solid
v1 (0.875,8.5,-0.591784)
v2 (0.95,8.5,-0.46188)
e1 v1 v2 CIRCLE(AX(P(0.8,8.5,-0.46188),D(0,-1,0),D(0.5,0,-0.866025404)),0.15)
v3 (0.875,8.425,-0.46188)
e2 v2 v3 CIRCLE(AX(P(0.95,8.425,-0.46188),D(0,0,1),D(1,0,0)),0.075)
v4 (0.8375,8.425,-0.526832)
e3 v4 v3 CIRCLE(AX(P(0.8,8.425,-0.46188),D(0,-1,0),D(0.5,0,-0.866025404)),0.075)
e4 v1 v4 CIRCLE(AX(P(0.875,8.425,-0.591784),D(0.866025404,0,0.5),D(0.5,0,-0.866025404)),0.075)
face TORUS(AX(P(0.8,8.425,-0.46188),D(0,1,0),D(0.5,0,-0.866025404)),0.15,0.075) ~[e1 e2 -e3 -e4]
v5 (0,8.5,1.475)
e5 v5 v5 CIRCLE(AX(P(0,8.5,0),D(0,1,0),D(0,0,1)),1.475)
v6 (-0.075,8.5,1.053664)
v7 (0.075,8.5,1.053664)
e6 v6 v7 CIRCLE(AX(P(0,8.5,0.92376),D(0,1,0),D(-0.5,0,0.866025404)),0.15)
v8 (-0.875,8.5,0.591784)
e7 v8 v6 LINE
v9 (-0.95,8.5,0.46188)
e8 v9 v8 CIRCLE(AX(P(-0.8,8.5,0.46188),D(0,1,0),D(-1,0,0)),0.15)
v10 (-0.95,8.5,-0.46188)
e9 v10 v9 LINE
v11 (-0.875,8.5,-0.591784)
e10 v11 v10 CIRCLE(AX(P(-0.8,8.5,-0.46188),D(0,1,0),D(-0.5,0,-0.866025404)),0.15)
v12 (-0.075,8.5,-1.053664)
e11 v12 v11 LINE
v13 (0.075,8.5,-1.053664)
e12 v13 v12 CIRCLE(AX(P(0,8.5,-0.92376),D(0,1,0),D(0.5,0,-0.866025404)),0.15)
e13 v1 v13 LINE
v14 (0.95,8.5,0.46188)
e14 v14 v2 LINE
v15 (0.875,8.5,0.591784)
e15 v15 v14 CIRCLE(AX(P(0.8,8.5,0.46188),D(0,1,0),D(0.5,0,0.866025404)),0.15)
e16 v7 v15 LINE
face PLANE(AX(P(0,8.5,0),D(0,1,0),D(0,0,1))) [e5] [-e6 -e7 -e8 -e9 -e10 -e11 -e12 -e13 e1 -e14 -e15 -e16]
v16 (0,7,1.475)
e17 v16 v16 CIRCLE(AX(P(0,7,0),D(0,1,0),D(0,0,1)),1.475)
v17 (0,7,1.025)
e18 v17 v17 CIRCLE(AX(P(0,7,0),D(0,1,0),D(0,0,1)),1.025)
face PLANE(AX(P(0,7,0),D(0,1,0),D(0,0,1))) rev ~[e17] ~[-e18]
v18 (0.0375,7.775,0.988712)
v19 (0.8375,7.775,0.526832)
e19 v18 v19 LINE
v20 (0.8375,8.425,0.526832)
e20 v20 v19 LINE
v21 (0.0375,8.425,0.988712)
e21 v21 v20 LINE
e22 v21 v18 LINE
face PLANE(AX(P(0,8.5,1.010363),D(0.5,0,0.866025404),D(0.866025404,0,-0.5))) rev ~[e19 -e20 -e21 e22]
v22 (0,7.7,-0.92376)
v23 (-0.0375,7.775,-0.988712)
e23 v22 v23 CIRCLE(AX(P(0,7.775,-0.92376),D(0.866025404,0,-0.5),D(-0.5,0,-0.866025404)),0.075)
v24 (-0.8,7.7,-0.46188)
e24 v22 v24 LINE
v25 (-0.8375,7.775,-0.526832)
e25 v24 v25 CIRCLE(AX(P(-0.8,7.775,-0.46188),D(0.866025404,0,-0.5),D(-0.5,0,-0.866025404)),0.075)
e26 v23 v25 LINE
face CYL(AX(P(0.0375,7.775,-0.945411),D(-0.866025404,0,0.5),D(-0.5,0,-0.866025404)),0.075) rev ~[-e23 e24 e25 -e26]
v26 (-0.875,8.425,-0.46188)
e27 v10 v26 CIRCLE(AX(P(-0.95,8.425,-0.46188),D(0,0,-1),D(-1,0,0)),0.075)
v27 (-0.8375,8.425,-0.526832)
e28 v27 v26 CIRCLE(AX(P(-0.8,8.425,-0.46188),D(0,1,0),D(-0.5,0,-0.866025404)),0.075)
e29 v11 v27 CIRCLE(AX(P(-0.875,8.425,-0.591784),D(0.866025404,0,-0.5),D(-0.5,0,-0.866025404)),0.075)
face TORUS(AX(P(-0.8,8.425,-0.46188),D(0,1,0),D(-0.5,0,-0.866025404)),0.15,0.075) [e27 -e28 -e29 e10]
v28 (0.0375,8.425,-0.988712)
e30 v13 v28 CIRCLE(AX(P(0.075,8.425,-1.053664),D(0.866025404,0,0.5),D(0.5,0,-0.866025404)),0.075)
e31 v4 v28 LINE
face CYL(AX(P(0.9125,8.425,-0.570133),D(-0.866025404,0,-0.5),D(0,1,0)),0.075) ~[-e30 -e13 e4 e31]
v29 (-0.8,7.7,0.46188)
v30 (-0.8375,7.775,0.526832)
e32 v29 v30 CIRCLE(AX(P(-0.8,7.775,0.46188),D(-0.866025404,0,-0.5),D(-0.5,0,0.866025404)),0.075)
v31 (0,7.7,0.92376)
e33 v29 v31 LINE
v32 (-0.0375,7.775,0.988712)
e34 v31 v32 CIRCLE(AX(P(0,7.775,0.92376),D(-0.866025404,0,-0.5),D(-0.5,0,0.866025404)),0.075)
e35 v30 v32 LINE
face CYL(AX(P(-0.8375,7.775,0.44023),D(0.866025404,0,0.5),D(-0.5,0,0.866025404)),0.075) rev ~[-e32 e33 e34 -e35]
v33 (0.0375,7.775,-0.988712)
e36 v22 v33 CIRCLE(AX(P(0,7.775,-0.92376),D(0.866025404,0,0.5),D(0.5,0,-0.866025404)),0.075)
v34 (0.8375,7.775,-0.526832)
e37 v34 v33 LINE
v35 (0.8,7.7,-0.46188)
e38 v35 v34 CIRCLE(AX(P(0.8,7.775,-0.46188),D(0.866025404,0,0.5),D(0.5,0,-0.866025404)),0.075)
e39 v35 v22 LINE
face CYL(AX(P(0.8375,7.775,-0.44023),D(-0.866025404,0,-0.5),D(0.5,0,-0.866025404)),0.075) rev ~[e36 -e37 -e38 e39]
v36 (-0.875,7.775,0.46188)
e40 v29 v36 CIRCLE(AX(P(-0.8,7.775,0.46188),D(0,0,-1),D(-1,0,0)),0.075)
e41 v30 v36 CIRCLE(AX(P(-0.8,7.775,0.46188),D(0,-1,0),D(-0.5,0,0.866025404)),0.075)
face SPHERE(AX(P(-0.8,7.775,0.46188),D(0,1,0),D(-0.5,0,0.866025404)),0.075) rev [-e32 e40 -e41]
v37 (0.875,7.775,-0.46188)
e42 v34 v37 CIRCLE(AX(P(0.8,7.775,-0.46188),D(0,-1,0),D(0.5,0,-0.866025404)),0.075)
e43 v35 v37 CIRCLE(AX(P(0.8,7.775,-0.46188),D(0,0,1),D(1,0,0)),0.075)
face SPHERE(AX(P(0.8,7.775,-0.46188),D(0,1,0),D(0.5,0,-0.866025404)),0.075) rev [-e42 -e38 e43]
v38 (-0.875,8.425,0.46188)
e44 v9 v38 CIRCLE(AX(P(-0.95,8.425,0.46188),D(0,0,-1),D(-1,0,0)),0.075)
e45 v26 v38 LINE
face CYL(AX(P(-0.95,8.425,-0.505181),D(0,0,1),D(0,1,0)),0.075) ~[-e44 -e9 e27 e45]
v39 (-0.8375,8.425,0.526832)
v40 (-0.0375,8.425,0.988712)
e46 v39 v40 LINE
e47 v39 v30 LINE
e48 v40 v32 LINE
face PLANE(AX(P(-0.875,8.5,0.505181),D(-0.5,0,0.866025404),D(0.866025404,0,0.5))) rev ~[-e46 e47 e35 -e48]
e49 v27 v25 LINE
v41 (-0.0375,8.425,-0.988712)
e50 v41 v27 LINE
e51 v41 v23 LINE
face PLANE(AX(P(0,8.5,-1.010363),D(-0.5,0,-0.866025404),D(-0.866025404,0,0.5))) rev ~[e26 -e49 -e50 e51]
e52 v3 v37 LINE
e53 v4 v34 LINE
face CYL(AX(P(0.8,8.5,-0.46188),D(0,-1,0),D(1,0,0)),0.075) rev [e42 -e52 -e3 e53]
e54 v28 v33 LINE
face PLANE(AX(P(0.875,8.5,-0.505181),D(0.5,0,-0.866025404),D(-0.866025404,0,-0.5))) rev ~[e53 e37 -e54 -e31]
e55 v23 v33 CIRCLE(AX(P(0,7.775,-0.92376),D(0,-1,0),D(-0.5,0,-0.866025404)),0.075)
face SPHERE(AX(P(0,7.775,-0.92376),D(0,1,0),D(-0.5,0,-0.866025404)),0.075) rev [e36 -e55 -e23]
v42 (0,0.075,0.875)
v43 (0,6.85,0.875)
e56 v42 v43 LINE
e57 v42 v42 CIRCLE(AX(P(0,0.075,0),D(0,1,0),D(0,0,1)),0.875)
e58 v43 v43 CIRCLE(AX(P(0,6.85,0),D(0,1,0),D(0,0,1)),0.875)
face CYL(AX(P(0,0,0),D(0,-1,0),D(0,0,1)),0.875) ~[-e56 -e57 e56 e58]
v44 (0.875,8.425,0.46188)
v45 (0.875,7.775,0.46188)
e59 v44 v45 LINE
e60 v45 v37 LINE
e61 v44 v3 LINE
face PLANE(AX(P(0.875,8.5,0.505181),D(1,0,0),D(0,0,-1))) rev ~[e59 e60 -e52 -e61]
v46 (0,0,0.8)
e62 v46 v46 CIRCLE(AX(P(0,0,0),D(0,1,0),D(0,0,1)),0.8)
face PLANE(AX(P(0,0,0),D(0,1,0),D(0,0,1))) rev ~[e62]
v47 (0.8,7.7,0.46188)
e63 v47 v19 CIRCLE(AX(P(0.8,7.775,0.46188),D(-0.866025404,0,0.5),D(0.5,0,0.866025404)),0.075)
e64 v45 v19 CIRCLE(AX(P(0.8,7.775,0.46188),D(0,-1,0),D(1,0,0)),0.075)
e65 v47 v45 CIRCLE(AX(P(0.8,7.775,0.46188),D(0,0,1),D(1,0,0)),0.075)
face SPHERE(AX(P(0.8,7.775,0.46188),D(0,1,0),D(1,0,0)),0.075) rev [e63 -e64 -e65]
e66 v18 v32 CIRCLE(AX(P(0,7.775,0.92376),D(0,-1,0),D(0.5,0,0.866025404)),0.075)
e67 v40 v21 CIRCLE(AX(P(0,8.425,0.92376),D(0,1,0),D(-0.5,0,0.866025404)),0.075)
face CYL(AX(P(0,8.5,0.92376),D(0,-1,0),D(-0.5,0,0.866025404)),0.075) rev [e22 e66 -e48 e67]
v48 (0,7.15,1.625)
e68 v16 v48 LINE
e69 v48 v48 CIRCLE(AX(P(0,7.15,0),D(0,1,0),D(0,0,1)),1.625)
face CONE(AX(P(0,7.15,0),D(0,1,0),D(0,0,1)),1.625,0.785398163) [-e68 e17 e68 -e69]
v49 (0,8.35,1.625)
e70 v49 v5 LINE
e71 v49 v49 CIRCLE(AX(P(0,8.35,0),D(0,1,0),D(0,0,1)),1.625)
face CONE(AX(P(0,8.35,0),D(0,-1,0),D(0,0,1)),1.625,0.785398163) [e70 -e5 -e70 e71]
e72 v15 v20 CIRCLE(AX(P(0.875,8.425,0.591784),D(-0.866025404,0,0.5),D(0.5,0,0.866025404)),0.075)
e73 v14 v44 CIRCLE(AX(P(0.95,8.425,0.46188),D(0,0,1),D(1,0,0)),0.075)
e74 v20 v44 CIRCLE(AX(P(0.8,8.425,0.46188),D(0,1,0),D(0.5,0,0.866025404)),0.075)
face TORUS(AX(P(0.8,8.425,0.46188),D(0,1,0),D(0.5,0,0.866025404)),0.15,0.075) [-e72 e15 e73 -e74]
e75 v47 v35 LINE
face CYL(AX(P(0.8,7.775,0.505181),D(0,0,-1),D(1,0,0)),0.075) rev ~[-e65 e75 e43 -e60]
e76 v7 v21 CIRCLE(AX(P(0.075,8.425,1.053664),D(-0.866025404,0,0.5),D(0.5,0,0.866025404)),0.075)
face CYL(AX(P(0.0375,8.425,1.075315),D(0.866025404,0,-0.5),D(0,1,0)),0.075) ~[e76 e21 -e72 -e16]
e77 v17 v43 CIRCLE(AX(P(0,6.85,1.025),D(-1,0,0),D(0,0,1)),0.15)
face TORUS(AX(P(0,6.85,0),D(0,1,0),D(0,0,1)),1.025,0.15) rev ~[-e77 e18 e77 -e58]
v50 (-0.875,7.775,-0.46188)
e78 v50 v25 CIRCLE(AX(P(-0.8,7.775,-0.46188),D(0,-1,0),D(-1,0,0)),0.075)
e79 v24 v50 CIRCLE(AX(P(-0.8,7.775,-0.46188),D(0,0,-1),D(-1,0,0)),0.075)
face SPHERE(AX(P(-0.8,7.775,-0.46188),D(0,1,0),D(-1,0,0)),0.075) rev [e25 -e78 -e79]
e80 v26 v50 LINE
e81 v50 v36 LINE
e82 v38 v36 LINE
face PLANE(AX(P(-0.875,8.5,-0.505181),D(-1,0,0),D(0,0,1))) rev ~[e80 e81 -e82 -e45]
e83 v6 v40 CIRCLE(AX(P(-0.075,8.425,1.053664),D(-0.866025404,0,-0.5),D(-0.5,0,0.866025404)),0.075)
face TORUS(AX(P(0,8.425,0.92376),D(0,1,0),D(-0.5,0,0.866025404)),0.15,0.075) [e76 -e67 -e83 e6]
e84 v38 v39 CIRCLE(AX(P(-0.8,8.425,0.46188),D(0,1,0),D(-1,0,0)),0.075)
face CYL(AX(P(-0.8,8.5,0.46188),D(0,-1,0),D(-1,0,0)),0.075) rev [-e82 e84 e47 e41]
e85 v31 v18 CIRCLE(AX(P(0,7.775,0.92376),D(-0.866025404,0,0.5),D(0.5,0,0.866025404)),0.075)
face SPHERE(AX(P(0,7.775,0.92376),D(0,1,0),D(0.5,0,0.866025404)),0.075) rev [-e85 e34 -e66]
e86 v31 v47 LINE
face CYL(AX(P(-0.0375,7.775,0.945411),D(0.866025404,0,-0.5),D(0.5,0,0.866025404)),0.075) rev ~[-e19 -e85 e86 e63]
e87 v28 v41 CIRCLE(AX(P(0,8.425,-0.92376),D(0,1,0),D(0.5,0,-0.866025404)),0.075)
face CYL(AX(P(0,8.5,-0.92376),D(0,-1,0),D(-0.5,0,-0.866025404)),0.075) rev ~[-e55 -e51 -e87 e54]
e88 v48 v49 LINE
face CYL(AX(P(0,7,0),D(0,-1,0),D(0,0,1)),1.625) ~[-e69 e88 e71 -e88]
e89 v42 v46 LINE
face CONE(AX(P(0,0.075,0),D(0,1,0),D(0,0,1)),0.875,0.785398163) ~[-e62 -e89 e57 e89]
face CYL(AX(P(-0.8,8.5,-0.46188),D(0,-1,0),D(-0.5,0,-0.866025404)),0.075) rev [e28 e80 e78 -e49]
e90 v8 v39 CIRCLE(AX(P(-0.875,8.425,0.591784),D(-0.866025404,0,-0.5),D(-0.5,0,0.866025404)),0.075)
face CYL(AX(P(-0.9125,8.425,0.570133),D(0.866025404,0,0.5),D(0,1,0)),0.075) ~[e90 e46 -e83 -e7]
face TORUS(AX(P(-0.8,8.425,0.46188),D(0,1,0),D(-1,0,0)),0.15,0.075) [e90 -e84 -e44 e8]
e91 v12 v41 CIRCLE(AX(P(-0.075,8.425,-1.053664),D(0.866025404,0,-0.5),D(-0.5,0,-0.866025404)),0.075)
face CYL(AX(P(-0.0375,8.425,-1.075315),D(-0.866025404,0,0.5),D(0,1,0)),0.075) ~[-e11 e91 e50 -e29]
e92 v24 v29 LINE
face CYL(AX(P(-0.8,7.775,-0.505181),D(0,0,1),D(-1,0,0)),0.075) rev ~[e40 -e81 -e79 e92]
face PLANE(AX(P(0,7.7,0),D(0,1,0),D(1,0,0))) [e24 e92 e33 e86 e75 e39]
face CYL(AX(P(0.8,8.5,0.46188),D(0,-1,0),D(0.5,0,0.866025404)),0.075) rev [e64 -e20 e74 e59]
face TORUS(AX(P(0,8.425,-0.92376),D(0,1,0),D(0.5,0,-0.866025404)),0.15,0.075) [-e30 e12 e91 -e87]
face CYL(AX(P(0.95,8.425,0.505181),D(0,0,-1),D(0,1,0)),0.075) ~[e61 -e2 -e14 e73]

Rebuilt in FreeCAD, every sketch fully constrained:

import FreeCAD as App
import Part
import Sketcher

V = App.Vector
Q = App.Units.Quantity


def edges_at(feature, points):
    """Names of the edges that pass closest to the given points."""
    edges = feature.Shape.Edges
    near = lambda p: min(range(len(edges)), key=lambda i: edges[i].distToShape(Part.Vertex(*p))[0])
    return sorted({f"Edge{near(p) + 1}" for p in points})

doc = App.newDocument("Part")
body = doc.addObject("PartDesign::Body", "Body")

# Sketch on XZ plane
sketch1 = body.newObject("Sketcher::SketchObject", "Sketch")
sketch1.AttachmentSupport = (doc.getObject("XZ_Plane"), [""])
sketch1.MapMode = "FlatFace"
sketch1.addGeometry(Part.Circle(V(0, 0, 0), V(0, 0, 1), 0.9), False)
sketch1.addConstraint(Sketcher.Constraint("Coincident", 0, 3, -1, 1))
sketch1.addConstraint(Sketcher.Constraint("Diameter", 0, Q("1.75 mm")))
pad1 = body.newObject("PartDesign::Pad", "Pad")
pad1.Profile = sketch1
pad1.Length = 7
pad1.Reversed = True

# Sketch on XZ plane
sketch2 = body.newObject("Sketcher::SketchObject", "Sketch001")
sketch2.AttachmentSupport = (doc.getObject("XZ_Plane"), [""])
sketch2.MapMode = "FlatFace"
sketch2.AttachmentOffset = App.Placement(V(0, 0, -7), App.Rotation())
sketch2.addGeometry(Part.Circle(V(0, 0, 0), V(0, 0, 1), 1.6), False)
sketch2.addConstraint(Sketcher.Constraint("Coincident", 0, 3, -1, 1))
sketch2.addConstraint(Sketcher.Constraint("Diameter", 0, Q("3.25 mm")))
pad2 = body.newObject("PartDesign::Pad", "Pad001")
pad2.Profile = sketch2
pad2.Length = 1.5
pad2.Reversed = True
doc.recompute()

fillet = body.newObject("PartDesign::Fillet", "Fillet")
fillet.Base = (pad2, edges_at(pad2, [(0, 7, -0.875)]))
fillet.Radius = 0.15
doc.recompute()

chamfer = body.newObject("PartDesign::Chamfer", "Chamfer")
chamfer.Base = (fillet, edges_at(fillet, [(0, 7, -1.625), (0, 8.5, -1.625)]))
chamfer.Size = 0.15

# Sketch on XZ plane
sketch3 = body.newObject("Sketcher::SketchObject", "Sketch002")
sketch3.AttachmentSupport = (doc.getObject("XZ_Plane"), [""])
sketch3.MapMode = "FlatFace"
sketch3.AttachmentOffset = App.Placement(V(0, 0, -8.5), App.Rotation())
sketch3.addGeometry(Part.LineSegment(V(0, -1, 0), V(-0.9, -0.5, 0)), False)
sketch3.addGeometry(Part.LineSegment(V(-0.9, -0.5, 0), V(-0.9, 0.5, 0)), False)
sketch3.addGeometry(Part.LineSegment(V(-0.9, 0.5, 0), V(0, 1, 0)), False)
sketch3.addGeometry(Part.LineSegment(V(0, 1, 0), V(0.9, 0.5, 0)), False)
sketch3.addGeometry(Part.LineSegment(V(0.9, 0.5, 0), V(0.9, -0.5, 0)), False)
sketch3.addGeometry(Part.LineSegment(V(0.9, -0.5, 0), V(0, -1, 0)), False)
sketch3.addConstraint(Sketcher.Constraint("Coincident", 0, 2, 1, 1))
sketch3.addConstraint(Sketcher.Constraint("Coincident", 1, 2, 2, 1))
sketch3.addConstraint(Sketcher.Constraint("Coincident", 2, 2, 3, 1))
sketch3.addConstraint(Sketcher.Constraint("Coincident", 3, 2, 4, 1))
sketch3.addConstraint(Sketcher.Constraint("Coincident", 4, 2, 5, 1))
sketch3.addConstraint(Sketcher.Constraint("Coincident", 5, 2, 0, 1))
sketch3.addConstraint(Sketcher.Constraint("Vertical", 1))
sketch3.addConstraint(Sketcher.Constraint("Vertical", 4))
sketch3.addConstraint(Sketcher.Constraint("Symmetric", 0, 2, 3, 2, -1, 1))
sketch3.addConstraint(Sketcher.Constraint("Symmetric", 2, 2, 5, 2, -1, 1))
sketch3.addConstraint(Sketcher.Constraint("PointOnObject", 2, 2, -2))
sketch3.addConstraint(Sketcher.Constraint("Parallel", 2, 5))
sketch3.addConstraint(Sketcher.Constraint("Horizontal", 1, 2, 3, 2))
sketch3.addConstraint(Sketcher.Constraint("Angle", 0, Q("150 deg")))
sketch3.addConstraint(Sketcher.Constraint("DistanceX", 1, 2, 3, 2, Q("1.75 mm")))
sketch3.addConstraint(Sketcher.Constraint("DistanceY", 1, 1, 1, 2, Q("1.010363 mm")))
pocket1 = body.newObject("PartDesign::Pocket", "Pocket")
pocket1.Profile = sketch3
pocket1.Length = 0.8
pocket1.Reversed = True
doc.recompute()

chamfer2 = body.newObject("PartDesign::Chamfer", "Chamfer001")
chamfer2.Base = (pocket1, edges_at(pocket1, [(0, 0, -0.875)]))
chamfer2.Size = 0.075
doc.recompute()

fillet2 = body.newObject("PartDesign::Fillet", "Fillet001")
fillet2.Base = (chamfer2, edges_at(chamfer2, [
    (0.438, 7.7, -0.758),
    (0, 8.1, -1.01),
    (0.875, 7.7, 0),
    (0.875, 8.1, -0.505),
    (0.438, 7.7, 0.758),
    (0.875, 8.1, 0.505),
    (-0.438, 7.7, 0.758),
    (0, 8.1, 1.01),
    (-0.875, 7.7, 0),
    (-0.875, 8.1, 0.505),
    (-0.438, 7.7, -0.758),
    (-0.875, 8.1, -0.505),
    (0.438, 8.5, -0.758),
    (-0.438, 8.5, -0.758),
    (-0.875, 8.5, 0),
    (-0.438, 8.5, 0.758),
    (0.438, 8.5, 0.758),
    (0.875, 8.5, 0),
]))
fillet2.Radius = 0.075

doc.recompute()
